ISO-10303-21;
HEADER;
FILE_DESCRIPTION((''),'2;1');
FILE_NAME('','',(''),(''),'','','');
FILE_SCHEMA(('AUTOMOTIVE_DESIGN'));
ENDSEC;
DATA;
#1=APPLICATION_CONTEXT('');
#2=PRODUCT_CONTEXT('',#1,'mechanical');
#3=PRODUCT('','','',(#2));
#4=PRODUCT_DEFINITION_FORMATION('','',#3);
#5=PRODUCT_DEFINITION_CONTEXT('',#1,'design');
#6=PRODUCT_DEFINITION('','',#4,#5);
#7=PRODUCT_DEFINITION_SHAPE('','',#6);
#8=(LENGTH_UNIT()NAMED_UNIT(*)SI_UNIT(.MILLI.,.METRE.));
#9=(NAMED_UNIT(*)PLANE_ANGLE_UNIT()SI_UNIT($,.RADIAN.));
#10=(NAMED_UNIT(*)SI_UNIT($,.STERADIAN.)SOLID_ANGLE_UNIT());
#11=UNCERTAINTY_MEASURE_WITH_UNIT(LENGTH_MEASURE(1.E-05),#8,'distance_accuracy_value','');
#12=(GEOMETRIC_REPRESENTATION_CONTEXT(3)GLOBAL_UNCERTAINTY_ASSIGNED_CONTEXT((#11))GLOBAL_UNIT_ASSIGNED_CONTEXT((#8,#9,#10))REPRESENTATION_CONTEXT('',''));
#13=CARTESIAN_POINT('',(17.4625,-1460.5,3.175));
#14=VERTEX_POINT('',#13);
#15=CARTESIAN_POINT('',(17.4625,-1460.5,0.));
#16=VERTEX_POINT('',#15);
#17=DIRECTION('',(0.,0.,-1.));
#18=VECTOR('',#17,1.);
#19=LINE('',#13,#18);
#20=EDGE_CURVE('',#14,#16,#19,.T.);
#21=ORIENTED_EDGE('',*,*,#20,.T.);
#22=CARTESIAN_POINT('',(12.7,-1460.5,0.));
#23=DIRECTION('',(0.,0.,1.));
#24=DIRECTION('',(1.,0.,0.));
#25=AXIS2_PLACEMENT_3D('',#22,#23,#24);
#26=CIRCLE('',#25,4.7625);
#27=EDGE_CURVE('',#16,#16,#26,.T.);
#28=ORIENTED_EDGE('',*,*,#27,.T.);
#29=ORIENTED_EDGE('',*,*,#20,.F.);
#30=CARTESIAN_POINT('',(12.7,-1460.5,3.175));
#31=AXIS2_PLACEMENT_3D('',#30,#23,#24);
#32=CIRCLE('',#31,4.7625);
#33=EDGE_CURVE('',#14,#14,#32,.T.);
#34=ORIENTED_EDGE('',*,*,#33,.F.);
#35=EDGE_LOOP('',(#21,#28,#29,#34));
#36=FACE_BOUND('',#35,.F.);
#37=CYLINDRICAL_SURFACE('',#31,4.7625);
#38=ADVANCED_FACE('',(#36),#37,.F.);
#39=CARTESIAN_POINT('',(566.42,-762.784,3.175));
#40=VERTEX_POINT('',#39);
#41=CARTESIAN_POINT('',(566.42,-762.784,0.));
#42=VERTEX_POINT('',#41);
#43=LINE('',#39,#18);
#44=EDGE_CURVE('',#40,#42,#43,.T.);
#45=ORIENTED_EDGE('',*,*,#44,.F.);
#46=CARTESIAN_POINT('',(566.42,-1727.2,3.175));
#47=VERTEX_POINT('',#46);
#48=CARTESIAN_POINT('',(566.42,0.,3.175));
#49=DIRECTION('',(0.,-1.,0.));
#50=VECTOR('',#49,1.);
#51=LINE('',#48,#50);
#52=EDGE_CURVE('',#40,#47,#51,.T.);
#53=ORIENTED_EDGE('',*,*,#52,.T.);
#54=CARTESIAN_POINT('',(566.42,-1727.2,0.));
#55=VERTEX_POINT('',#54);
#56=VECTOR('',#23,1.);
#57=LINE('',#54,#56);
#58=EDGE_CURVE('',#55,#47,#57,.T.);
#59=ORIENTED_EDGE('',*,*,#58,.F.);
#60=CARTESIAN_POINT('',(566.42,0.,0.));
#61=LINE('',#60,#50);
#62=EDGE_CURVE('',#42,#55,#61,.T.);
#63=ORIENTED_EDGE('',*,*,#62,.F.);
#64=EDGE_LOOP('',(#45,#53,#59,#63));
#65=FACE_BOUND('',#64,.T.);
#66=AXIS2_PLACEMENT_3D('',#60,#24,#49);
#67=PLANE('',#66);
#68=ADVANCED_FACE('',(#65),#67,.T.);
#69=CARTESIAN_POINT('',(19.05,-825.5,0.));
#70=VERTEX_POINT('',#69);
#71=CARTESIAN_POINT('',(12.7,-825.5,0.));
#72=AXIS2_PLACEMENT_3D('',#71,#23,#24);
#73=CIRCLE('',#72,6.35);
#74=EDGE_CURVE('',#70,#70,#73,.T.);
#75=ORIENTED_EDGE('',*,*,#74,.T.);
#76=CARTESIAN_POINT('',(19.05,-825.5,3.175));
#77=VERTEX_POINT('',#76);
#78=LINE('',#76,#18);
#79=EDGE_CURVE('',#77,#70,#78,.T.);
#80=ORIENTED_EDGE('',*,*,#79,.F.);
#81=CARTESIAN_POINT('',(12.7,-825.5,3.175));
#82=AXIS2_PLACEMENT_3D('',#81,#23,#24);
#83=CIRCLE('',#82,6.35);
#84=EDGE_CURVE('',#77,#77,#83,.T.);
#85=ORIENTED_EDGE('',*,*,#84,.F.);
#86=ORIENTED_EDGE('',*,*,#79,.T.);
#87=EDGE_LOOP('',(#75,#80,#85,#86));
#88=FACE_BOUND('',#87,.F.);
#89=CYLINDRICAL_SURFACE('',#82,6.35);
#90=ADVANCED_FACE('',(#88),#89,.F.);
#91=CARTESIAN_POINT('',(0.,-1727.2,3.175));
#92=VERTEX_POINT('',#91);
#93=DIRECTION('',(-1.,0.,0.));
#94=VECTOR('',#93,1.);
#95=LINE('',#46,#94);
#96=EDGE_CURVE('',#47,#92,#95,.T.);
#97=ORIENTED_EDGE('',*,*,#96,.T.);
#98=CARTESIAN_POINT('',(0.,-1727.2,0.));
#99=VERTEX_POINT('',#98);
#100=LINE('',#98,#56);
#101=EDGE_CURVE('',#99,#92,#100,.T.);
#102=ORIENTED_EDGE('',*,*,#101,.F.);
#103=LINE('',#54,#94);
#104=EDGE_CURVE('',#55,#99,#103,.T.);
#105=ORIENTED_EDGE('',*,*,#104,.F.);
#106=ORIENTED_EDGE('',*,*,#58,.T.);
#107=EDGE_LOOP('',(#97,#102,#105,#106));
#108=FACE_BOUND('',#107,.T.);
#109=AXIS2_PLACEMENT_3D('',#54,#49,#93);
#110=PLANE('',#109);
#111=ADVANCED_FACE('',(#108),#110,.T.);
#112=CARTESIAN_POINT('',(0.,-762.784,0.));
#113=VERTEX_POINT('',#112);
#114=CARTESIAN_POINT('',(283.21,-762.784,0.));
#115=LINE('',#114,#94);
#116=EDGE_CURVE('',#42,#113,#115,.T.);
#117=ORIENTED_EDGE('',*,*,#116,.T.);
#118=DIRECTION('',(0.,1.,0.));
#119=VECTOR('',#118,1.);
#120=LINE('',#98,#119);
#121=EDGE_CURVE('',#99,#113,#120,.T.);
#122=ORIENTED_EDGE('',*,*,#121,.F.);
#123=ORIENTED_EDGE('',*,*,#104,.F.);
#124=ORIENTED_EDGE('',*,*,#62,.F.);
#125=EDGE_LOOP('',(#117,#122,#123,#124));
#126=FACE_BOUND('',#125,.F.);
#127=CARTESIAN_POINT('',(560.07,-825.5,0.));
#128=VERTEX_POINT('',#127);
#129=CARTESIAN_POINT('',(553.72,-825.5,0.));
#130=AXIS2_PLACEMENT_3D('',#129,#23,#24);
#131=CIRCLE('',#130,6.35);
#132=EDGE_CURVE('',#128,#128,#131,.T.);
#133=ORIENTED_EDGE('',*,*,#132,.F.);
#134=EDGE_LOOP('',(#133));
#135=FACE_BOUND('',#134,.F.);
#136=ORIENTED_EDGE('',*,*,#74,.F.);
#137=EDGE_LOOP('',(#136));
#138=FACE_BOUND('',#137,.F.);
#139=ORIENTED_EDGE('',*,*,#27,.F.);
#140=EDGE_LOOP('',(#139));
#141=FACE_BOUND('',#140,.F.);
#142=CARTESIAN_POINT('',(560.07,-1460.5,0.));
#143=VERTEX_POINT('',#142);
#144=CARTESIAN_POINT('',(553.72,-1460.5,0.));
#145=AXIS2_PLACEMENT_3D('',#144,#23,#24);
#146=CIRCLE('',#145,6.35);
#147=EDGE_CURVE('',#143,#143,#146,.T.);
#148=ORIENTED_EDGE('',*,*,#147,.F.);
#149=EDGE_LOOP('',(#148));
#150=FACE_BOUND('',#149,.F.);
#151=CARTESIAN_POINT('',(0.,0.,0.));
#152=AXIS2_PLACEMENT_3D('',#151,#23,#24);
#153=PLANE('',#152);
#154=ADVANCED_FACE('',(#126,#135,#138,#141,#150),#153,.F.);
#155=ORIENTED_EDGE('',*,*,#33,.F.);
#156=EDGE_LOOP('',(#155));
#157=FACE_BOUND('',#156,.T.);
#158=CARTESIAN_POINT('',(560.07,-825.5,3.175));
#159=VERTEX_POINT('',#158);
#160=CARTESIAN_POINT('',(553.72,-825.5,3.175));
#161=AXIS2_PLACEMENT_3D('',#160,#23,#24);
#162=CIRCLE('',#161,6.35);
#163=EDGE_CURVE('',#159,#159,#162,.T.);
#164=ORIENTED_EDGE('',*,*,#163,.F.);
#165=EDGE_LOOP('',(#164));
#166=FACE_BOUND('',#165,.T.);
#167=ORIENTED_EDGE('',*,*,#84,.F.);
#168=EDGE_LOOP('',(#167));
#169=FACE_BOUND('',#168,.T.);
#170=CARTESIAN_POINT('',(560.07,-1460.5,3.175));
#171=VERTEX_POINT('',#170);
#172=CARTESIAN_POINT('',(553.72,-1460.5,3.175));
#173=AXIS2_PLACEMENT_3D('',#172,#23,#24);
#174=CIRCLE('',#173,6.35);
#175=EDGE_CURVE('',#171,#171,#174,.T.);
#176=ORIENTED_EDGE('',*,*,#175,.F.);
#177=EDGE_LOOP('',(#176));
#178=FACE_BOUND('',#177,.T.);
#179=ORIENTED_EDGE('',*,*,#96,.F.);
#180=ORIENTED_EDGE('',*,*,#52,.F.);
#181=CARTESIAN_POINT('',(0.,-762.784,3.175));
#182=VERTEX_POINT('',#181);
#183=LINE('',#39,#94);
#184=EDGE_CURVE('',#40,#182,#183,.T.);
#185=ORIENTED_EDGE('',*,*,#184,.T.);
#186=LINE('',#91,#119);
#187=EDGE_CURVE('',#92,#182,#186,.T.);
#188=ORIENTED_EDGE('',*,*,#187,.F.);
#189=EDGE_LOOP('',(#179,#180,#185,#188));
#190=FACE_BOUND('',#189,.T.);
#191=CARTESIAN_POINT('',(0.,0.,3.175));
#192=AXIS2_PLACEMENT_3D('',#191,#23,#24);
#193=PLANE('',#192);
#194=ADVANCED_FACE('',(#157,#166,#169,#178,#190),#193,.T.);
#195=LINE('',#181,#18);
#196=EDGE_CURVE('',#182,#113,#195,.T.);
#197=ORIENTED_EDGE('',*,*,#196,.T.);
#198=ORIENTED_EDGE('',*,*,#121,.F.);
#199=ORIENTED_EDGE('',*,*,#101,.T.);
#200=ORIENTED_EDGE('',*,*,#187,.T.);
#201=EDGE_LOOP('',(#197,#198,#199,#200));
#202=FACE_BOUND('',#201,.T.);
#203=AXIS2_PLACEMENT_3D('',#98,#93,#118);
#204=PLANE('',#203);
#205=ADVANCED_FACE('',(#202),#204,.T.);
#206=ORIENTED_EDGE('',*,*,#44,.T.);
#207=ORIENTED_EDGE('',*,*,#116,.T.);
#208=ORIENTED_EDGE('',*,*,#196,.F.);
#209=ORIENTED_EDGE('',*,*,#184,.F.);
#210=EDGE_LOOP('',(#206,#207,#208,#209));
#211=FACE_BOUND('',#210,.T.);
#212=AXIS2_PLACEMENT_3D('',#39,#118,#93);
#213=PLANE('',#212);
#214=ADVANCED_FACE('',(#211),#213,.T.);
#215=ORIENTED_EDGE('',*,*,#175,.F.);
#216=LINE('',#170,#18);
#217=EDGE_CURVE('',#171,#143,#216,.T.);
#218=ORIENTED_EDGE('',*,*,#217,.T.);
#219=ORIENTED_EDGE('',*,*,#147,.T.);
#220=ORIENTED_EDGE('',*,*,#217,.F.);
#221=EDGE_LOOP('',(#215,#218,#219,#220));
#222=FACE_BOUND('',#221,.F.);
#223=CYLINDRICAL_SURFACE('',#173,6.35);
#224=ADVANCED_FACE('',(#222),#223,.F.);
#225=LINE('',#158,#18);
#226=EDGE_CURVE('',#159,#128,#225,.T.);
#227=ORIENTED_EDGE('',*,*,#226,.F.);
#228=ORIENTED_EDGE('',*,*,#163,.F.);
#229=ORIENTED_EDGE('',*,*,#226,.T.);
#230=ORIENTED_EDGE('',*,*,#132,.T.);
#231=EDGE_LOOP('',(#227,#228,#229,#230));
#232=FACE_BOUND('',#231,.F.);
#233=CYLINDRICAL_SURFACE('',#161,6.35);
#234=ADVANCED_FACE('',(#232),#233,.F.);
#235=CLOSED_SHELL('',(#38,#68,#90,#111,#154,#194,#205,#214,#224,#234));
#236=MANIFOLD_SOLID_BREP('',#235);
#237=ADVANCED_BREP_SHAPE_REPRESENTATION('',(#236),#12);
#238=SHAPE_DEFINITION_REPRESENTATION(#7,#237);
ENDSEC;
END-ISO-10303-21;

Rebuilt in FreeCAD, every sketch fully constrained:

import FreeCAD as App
import Part
import Sketcher
Q = App.Units.Quantity


def add_polygon(sketch, points):
    """Adds a closed chain of lines whose ends are joined by coincident constraints."""
    first, n = sketch.GeometryCount, len(points)
    for a, b in zip(points, points[1:] + points[:1]):
        sketch.addGeometry(Part.LineSegment(App.Vector(*a, 0), App.Vector(*b, 0)), False)
    for i in range(n):
        sketch.addConstraint(Sketcher.Constraint("Coincident", first + i, 2, first + (i + 1) % n, 1))

doc = App.newDocument("Part")
params = doc.addObject("Spreadsheet::Sheet", "Params")
for row, (alias, value) in enumerate([
    ("sketch1_height", "68 in"),
    ("sketch1_width", "22.3 in"),
    ("pad1_length", "0.125 in"),
    ("sketch2_diameter", "1 in"),
    ("pad2_length", "0.125 in"),
    ("sketch3_diameter", "0.375 in"),
    ("sketch4_diameter", "0.5 in"),
    ("sketch4_diameter2", "0.375 in"),
    ("pocket2_length", "0.5 in"),
    ("sketch5_diameter", "0.5 in"),
    ("pocket3_length", "0.125 in"),
    ("sketch6_width", "22.3 in"),
    ("pocket4_length", "1 in"),
    ("sketch7_width", "22.3 in"),
    ("pocket5_length", "1 in"),
], start=1):
    params.set(f"A{row}", alias)
    params.set(f"B{row}", "=" + value)
    params.setAlias(f"B{row}", alias)

body = doc.addObject("PartDesign::Body", "Body")

sketch1 = doc.addObject("Sketcher::SketchObject", "Sketch")
body.addObject(sketch1)
sketch1.AttachmentSupport = (doc.XY_Plane, [""])
sketch1.MapMode = "FlatFace"
add_polygon(sketch1, [(566, 0), (0, 0), (0, -1727), (566, -1727)])
sketch1.addConstraint([
    Sketcher.Constraint("Horizontal", 0),
    Sketcher.Constraint("Vertical", 1),
    Sketcher.Constraint("Horizontal", 2),
    Sketcher.Constraint("Vertical", 3),
    Sketcher.Constraint("Coincident", 0, 2, -1, 1),
    Sketcher.Constraint("DistanceY", 1, 2, 1, 1, Q("68 in")),
    Sketcher.Constraint("DistanceX", 0, 2, 0, 1, Q("22.3 in")),
])
sketch1.setExpression("Constraints[9]", "Params.sketch1_height")
sketch1.setExpression("Constraints[10]", "Params.sketch1_width")
pad1 = doc.addObject("PartDesign::Pad", "Pad")
body.addObject(pad1)
pad1.Profile = sketch1
pad1.setExpression("Length", "Params.pad1_length")

sketch2 = doc.addObject("Sketcher::SketchObject", "Sketch001")
body.addObject(sketch2)
sketch2.AttachmentSupport = (doc.XY_Plane, [""])
sketch2.MapMode = "FlatFace"
sketch2.AttachmentOffset = App.Placement(App.Vector(0, 0, 0.125 * 25.4), App.Rotation())
sketch2.addGeometry([
    Part.Circle(App.Vector(69, -1392, 0), App.Vector(0, 0, 1), 13),
    Part.Circle(App.Vector(500, -1392, 0), App.Vector(0, 0, 1), 13),
], False)
sketch2.addConstraint([
    Sketcher.Constraint("Equal", 0, 1),
    Sketcher.Constraint("Horizontal", 0, 3, 1, 3),
    Sketcher.Constraint("Diameter", 0, Q("1 in")),
    Sketcher.Constraint("DistanceX", 0, 3, 1, 3, Q("17 in")),
    Sketcher.Constraint("DistanceX", -1, 1, 0, 3, Q("2.7 in")),
    Sketcher.Constraint("DistanceY", 0, 3, -1, 1, Q("54.8 in")),
])
sketch2.setExpression("Constraints[2]", "Params.sketch2_diameter")
pad2 = doc.addObject("PartDesign::Pad", "Pad001")
body.addObject(pad2)
pad2.Profile = sketch2
pad2.setExpression("Length", "Params.pad2_length")

sketch3 = doc.addObject("Sketcher::SketchObject", "Sketch002")
body.addObject(sketch3)
sketch3.AttachmentSupport = (doc.XY_Plane, [""])
sketch3.MapMode = "FlatFace"
sketch3.AttachmentOffset = App.Placement(App.Vector(0, 0, 0.125 * 25.4), App.Rotation())
sketch3.addGeometry([
    Part.Circle(App.Vector(12.7, -1460.5, 0), App.Vector(0, 0, 1), 4.8),
    Part.Circle(App.Vector(553.7, -1460.5, 0), App.Vector(0, 0, 1), 4.8),
], False)
sketch3.addConstraint([
    Sketcher.Constraint("Equal", 0, 1),
    Sketcher.Constraint("Horizontal", 0, 3, 1, 3),
    Sketcher.Constraint("Diameter", 0, Q("0.375 in")),
    Sketcher.Constraint("DistanceX", -1, 1, 0, 3, Q("0.5 in")),
    Sketcher.Constraint("DistanceY", 0, 3, -1, 1, Q("57.5 in")),
    Sketcher.Constraint("DistanceX", -1, 1, 1, 3, Q("21.8 in")),
])
sketch3.setExpression("Constraints[2]", "Params.sketch3_diameter")
pocket1 = doc.addObject("PartDesign::Pocket", "Pocket")
body.addObject(pocket1)
pocket1.Profile = sketch3
pocket1.Type = "ThroughAll"

sketch4 = doc.addObject("Sketcher::SketchObject", "Sketch003")
body.addObject(sketch4)
sketch4.AttachmentSupport = (doc.XY_Plane, [""])
sketch4.MapMode = "FlatFace"
sketch4.AttachmentOffset = App.Placement(App.Vector(0, 0, 0.125 * 25.4), App.Rotation())
sketch4.addGeometry([
    Part.Circle(App.Vector(553.7, -1460.5, 0), App.Vector(0, 0, 1), 6.3),
    Part.Circle(App.Vector(553.7, -1460.5, 0), App.Vector(0, 0, 1), 4.8),
], False)
sketch4.addConstraint([
    Sketcher.Constraint("Coincident", 1, 3, 0, 3),
    Sketcher.Constraint("Diameter", 0, Q("0.5 in")),
    Sketcher.Constraint("Diameter", 1, Q("0.375 in")),
    Sketcher.Constraint("DistanceX", -1, 1, 0, 3, Q("21.8 in")),
    Sketcher.Constraint("DistanceY", 0, 3, -1, 1, Q("57.5 in")),
])
sketch4.setExpression("Constraints[1]", "Params.sketch4_diameter")
sketch4.setExpression("Constraints[2]", "Params.sketch4_diameter2")
pocket2 = doc.addObject("PartDesign::Pocket", "Pocket001")
body.addObject(pocket2)
pocket2.Profile = sketch4
pocket2.setExpression("Length", "Params.pocket2_length")

sketch5 = doc.addObject("Sketcher::SketchObject", "Sketch004")
body.addObject(sketch5)
sketch5.AttachmentSupport = (doc.XY_Plane, [""])
sketch5.MapMode = "FlatFace"
sketch5.AttachmentOffset = App.Placement(App.Vector(0, 0, 0.125 * 25.4), App.Rotation())
sketch5.addGeometry([
    Part.Circle(App.Vector(554, -826, 0), App.Vector(0, 0, 1), 6),
    Part.Circle(App.Vector(13, -826, 0), App.Vector(0, 0, 1), 6),
], False)
sketch5.addConstraint([
    Sketcher.Constraint("Equal", 0, 1),
    Sketcher.Constraint("Horizontal", 0, 3, 1, 3),
    Sketcher.Constraint("Diameter", 0, Q("0.5 in")),
    Sketcher.Constraint("DistanceX", -1, 1, 0, 3, Q("21.8 in")),
    Sketcher.Constraint("DistanceY", 0, 3, -1, 1, Q("32.5 in")),
    Sketcher.Constraint("DistanceX", -1, 1, 1, 3, Q("0.5 in")),
])
sketch5.setExpression("Constraints[2]", "Params.sketch5_diameter")
pocket3 = doc.addObject("PartDesign::Pocket", "Pocket002")
body.addObject(pocket3)
pocket3.Profile = sketch5
pocket3.setExpression("Length", "Params.pocket3_length")

sketch6 = doc.addObject("Sketcher::SketchObject", "Sketch005")
body.addObject(sketch6)
sketch6.AttachmentSupport = (doc.XY_Plane, [""])
sketch6.MapMode = "FlatFace"
sketch6.AttachmentOffset = App.Placement(App.Vector(0, 0, 0.125 * 25.4), App.Rotation())
add_polygon(sketch6, [(566, -1733), (566, -1054), (0, -1054), (0, -1733)])
sketch6.addConstraint([
    Sketcher.Constraint("Vertical", 0),
    Sketcher.Constraint("Horizontal", 1),
    Sketcher.Constraint("Vertical", 2),
    Sketcher.Constraint("Horizontal", 3),
    Sketcher.Constraint("PointOnObject", 1, 2, -2),
    Sketcher.Constraint("DistanceX", 1, 2, 1, 1, Q("22.3 in")),
    Sketcher.Constraint("DistanceY", 0, 1, 0, 2, Q("26.7244 in")),
    Sketcher.Constraint("DistanceY", 0, 2, -1, 1, 1054.0894),
])
sketch6.setExpression("Constraints[9]", "Params.sketch6_width")
pocket4 = doc.addObject("PartDesign::Pocket", "Pocket003")
body.addObject(pocket4)
pocket4.Profile = sketch6
pocket4.setExpression("Length", "Params.pocket4_length")
pocket4.Reversed = True

sketch7 = doc.addObject("Sketcher::SketchObject", "Sketch006")
body.addObject(sketch7)
sketch7.AttachmentSupport = (doc.XY_Plane, [""])
sketch7.MapMode = "FlatFace"
sketch7.AttachmentOffset = App.Placement(App.Vector(0, 0, 0.125 * 25.4), App.Rotation())
add_polygon(sketch7, [(0, -763), (566, -763), (566, 0), (0, 0)])
sketch7.addConstraint([
    Sketcher.Constraint("Horizontal", 0),
    Sketcher.Constraint("Vertical", 1),
    Sketcher.Constraint("Horizontal", 2),
    Sketcher.Constraint("Vertical", 3),
    Sketcher.Constraint("Coincident", 2, 2, -1, 1),
    Sketcher.Constraint("DistanceX", 0, 1, 0, 2, Q("22.3 in")),
    Sketcher.Constraint("DistanceY", 1, 1, 1, 2, 762.784),
])
sketch7.setExpression("Constraints[9]", "Params.sketch7_width")
pocket5 = doc.addObject("PartDesign::Pocket", "Pocket004")
body.addObject(pocket5)
pocket5.Profile = sketch7
pocket5.setExpression("Length", "Params.pocket5_length")

doc.recompute()
